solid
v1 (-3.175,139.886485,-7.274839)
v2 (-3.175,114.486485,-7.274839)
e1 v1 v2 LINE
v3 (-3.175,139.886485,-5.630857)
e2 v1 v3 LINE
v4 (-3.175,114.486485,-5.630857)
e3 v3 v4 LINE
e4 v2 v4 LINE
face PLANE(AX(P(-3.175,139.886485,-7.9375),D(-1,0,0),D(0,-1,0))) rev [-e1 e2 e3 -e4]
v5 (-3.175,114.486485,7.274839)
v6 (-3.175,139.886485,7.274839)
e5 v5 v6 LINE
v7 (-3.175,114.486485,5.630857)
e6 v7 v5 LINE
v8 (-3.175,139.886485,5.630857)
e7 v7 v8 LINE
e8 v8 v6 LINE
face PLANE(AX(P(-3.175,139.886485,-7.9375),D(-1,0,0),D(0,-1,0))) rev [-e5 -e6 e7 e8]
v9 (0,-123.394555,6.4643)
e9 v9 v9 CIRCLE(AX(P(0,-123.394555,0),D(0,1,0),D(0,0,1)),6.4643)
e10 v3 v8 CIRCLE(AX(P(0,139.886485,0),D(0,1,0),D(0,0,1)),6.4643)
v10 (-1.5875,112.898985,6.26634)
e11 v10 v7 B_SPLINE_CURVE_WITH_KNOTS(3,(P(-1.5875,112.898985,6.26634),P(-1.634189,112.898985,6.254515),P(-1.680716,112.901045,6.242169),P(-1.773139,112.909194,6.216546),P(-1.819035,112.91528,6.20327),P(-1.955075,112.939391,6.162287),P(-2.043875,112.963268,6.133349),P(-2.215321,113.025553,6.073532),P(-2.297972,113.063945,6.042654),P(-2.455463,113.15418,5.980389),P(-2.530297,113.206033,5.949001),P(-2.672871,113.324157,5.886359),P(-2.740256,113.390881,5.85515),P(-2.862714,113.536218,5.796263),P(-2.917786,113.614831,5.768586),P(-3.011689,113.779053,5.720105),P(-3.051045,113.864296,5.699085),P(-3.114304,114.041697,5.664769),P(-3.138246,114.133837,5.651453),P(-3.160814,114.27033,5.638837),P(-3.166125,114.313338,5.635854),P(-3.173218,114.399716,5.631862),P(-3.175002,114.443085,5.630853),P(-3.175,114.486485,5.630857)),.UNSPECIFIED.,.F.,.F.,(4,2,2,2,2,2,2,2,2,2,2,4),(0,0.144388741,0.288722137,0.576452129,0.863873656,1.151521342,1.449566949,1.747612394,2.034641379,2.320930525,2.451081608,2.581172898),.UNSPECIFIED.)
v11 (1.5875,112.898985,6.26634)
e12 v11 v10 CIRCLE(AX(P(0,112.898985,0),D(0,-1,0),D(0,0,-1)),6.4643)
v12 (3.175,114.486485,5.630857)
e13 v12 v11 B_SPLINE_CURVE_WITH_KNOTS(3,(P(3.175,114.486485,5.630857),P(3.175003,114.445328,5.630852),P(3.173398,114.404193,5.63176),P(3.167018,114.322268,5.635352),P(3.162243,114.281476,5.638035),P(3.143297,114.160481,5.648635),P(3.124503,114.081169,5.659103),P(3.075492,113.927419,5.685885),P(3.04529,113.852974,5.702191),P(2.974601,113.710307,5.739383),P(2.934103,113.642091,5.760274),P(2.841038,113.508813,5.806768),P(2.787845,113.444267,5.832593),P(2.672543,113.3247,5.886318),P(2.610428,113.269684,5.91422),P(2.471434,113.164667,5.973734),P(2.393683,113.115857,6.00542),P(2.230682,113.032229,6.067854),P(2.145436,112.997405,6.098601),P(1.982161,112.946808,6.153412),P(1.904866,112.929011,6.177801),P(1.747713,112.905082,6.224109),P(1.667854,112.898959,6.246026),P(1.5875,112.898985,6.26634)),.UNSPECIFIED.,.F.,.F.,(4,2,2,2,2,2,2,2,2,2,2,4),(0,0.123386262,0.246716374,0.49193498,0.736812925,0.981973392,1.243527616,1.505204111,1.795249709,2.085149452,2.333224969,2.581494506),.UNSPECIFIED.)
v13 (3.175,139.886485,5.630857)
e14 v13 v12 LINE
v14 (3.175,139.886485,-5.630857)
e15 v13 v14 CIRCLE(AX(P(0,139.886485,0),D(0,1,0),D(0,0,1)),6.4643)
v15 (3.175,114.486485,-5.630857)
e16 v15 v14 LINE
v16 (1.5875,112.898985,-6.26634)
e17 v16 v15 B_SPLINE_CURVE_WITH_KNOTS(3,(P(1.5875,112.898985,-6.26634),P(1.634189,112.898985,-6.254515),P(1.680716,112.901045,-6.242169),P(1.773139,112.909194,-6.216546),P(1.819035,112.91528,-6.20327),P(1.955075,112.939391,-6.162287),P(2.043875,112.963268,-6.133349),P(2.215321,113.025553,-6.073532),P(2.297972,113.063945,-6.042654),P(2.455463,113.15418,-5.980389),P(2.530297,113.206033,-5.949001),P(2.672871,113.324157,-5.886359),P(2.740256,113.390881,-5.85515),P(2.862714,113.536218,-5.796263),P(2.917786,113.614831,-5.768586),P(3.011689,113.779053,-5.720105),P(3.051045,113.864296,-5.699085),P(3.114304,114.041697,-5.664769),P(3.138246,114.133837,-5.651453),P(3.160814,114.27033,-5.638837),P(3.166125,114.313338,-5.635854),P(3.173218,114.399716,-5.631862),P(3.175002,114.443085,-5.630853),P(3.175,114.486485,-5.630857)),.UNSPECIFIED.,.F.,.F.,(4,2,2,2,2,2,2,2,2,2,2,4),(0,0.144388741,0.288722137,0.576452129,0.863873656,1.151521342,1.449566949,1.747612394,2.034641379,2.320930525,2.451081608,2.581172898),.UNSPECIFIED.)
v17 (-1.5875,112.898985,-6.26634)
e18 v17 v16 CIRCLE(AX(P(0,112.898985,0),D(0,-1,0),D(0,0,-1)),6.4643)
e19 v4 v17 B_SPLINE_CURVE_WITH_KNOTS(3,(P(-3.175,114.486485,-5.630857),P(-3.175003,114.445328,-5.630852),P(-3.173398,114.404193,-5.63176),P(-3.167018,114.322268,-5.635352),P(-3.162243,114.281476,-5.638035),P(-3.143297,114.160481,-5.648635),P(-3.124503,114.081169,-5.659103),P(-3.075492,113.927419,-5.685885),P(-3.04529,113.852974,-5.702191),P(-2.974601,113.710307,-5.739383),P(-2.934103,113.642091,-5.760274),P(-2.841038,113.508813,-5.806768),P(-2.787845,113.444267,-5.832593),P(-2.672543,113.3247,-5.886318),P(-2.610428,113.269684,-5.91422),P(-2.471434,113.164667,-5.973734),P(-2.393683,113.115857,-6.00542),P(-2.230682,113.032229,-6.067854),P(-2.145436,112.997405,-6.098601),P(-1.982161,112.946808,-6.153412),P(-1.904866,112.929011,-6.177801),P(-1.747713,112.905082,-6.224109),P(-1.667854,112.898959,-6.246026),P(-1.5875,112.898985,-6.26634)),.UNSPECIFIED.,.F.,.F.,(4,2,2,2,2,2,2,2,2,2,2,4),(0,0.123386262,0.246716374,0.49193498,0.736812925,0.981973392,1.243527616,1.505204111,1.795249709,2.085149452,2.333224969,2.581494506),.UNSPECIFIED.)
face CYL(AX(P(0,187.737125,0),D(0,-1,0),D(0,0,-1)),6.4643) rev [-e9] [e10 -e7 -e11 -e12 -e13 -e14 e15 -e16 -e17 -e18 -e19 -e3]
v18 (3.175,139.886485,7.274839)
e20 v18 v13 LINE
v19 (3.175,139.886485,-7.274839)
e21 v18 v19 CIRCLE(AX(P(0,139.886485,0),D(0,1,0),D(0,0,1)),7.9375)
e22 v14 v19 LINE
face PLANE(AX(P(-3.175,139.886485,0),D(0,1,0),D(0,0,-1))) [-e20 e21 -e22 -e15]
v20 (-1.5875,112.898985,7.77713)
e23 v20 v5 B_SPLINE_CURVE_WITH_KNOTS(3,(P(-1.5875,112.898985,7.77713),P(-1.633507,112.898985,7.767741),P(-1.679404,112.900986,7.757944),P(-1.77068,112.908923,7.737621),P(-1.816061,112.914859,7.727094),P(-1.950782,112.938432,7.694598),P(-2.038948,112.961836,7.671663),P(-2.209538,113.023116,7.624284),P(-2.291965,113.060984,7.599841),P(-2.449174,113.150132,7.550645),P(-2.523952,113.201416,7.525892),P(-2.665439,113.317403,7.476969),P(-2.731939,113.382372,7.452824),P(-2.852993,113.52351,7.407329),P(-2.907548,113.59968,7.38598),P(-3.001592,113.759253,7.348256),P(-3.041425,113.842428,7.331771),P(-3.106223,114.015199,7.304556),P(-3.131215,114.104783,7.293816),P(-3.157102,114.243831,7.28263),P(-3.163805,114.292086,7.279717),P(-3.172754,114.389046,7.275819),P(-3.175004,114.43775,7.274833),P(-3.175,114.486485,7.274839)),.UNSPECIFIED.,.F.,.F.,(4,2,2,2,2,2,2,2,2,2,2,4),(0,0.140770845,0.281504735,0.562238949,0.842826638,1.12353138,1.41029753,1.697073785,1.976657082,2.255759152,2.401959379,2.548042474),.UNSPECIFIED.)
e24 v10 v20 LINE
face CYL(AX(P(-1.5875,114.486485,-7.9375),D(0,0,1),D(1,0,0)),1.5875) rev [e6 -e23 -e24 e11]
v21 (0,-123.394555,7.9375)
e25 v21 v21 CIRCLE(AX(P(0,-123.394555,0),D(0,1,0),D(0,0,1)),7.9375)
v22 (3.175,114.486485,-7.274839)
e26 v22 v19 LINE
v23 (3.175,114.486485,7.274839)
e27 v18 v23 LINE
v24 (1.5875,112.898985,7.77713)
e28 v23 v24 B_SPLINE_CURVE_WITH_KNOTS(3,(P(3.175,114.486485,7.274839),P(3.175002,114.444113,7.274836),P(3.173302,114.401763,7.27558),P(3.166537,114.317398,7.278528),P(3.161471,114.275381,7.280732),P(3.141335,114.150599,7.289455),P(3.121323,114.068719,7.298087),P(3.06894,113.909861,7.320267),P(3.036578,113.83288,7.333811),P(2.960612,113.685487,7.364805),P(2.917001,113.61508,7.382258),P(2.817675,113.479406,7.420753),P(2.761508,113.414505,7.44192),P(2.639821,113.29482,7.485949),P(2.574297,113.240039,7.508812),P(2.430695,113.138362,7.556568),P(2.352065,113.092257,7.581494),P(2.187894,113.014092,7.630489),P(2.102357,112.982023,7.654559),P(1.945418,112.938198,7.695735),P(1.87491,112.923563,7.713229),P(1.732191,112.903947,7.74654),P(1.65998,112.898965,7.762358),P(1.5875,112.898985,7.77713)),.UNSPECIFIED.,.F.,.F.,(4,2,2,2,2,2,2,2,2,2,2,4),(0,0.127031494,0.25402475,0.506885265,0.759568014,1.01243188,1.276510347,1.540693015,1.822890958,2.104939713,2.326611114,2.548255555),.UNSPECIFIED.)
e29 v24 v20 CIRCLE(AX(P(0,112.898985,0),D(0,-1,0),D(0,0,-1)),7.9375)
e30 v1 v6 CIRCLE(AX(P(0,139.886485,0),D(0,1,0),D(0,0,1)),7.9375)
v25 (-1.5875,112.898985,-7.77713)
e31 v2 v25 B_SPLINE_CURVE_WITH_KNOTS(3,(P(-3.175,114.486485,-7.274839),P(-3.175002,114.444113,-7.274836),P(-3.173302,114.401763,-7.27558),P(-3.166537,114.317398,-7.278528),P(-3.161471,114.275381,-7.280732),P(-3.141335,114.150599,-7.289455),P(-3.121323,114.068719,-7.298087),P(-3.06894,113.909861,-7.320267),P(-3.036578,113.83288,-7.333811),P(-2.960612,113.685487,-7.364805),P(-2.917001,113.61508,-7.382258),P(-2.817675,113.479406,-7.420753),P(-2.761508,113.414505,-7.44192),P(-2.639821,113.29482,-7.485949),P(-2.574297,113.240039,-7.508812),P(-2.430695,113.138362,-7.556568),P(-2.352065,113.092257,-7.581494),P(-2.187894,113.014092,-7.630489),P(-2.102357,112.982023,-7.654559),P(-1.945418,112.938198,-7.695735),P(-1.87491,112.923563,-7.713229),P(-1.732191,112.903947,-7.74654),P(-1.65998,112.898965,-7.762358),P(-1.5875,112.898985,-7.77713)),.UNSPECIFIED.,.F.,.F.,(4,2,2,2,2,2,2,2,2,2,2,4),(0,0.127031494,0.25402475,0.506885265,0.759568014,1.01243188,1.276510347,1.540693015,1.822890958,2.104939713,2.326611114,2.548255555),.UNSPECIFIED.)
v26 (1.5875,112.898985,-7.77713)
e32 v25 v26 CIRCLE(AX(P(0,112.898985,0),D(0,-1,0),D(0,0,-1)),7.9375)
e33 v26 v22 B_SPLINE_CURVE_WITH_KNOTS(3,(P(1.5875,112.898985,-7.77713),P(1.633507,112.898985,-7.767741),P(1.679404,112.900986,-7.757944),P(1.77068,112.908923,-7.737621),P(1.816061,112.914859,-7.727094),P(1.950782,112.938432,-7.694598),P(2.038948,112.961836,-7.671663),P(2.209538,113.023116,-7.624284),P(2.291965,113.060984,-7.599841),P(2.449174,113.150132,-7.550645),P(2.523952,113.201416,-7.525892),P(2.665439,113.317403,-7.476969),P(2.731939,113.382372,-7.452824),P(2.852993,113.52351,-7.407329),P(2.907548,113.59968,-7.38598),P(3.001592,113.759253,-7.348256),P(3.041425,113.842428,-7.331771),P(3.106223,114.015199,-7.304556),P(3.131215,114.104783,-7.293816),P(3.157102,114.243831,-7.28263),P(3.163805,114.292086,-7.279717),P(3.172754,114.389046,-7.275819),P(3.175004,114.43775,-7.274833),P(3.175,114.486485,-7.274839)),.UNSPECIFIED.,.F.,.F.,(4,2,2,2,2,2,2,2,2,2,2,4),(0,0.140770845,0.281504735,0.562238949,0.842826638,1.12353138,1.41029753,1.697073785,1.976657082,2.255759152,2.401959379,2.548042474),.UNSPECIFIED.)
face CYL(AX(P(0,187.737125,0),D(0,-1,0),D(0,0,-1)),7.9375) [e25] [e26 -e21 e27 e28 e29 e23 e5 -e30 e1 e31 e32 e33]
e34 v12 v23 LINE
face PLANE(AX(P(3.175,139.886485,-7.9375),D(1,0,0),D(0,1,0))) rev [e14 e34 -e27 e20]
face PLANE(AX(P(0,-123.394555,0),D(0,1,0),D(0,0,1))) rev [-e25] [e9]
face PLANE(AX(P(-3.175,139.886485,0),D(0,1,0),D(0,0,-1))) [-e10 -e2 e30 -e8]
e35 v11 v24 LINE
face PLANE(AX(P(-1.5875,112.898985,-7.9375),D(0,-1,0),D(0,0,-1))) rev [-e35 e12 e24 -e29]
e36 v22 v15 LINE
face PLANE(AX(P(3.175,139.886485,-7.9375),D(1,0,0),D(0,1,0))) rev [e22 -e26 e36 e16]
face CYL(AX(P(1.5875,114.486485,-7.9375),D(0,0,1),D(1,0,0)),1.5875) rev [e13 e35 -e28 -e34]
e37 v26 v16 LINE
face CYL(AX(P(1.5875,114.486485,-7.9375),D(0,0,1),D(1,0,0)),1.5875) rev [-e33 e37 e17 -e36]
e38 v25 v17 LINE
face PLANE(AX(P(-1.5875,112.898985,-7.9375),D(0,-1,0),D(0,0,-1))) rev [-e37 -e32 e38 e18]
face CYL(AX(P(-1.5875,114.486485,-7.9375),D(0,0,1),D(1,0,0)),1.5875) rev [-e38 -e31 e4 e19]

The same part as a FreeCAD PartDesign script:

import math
import FreeCAD as App
import Part
import Sketcher
from FreeCAD import Vector
Q = App.Units.Quantity

doc = App.newDocument("Part")
body = doc.addObject("PartDesign::Body", "Body")

# Sketch on XZ plane
sketch1 = body.newObject("Sketcher::SketchObject", "Sketch")
sketch1.AttachmentSupport = (doc.getObject("XZ_Plane"), [""])
sketch1.MapMode = "FlatFace"
sketch1.AttachmentOffset = App.Placement(Vector(0, 0, 123.394555), App.Rotation())
sketch1.addGeometry([
    Part.Circle(Vector(0, 0, 0), Vector(0, 0, 1), 8),
    Part.Circle(Vector(0, 0, 0), Vector(0, 0, 1), 6),
], False)
sketch1.addConstraint([
    Sketcher.Constraint("Coincident", 0, 3, -1, 1),
    Sketcher.Constraint("Coincident", 1, 3, -1, 1),
    Sketcher.Constraint("Diameter", 0, Q("0.625 in")),
    Sketcher.Constraint("Diameter", 1, Q("0.509 in")),
])
pad1 = body.newObject("PartDesign::Pad", "Pad")
pad1.Profile = sketch1
pad1.Length = 263.281039
pad1.Reversed = True

# Sketch on XY plane
sketch2 = body.newObject("Sketcher::SketchObject", "Sketch001")
sketch2.AttachmentSupport = (doc.getObject("XY_Plane"), [""])
sketch2.MapMode = "FlatFace"
sketch2.addGeometry([
    Part.LineSegment(Vector(3.2, 139.9, 0), Vector(-3.2, 139.9, 0)),  # 0
    Part.LineSegment(Vector(-3.2, 139.9, 0), Vector(-3.2, 114.5, 0)),  # 1
    Part.ArcOfCircle(Part.Circle(Vector(-1.6, 114.5, 0), Vector(0, 0, 1), 1.6), math.radians(180), math.radians(270)),  # 2
    Part.LineSegment(Vector(-1.6, 112.9, 0), Vector(1.6, 112.9, 0)),  # 3
    Part.ArcOfCircle(Part.Circle(Vector(1.6, 114.5, 0), Vector(0, 0, 1), 1.6), math.radians(-90), math.radians(0)),  # 4
    Part.LineSegment(Vector(3.2, 114.5, 0), Vector(3.2, 139.9, 0)),  # 5
], False)
sketch2.addConstraint([
    Sketcher.Constraint("Coincident", 0, 2, 1, 1),
    Sketcher.Constraint("Tangent", 1, 2, 2, 1),
    Sketcher.Constraint("Tangent", 2, 2, 3, 1),
    Sketcher.Constraint("Tangent", 3, 2, 4, 1),
    Sketcher.Constraint("Tangent", 4, 2, 5, 1),
    Sketcher.Constraint("Coincident", 5, 2, 0, 1),
    Sketcher.Constraint("Horizontal", 0),
    Sketcher.Constraint("Vertical", 1),
    Sketcher.Constraint("Horizontal", 3),
    Sketcher.Constraint("Vertical", 5),
    Sketcher.Constraint("Equal", 2, 4),
    Sketcher.Constraint("DistanceY", 1, 2, 1, 1, Q("1 in")),
    Sketcher.Constraint("Radius", 2, Q("0.0625 in")),
    Sketcher.Constraint("DistanceX", 0, 2, 0, 1, Q("0.25 in")),
    Sketcher.Constraint("DistanceX", 2, 3, -1, 1, Q("0.0625 in")),
    Sketcher.Constraint("DistanceY", -1, 1, 2, 3, 114.486485),
])
pocket1 = body.newObject("PartDesign::Pocket", "Pocket")
pocket1.Profile = sketch2
pocket1.Type = "ThroughAll"
pocket1.Midplane = True

doc.recompute()
